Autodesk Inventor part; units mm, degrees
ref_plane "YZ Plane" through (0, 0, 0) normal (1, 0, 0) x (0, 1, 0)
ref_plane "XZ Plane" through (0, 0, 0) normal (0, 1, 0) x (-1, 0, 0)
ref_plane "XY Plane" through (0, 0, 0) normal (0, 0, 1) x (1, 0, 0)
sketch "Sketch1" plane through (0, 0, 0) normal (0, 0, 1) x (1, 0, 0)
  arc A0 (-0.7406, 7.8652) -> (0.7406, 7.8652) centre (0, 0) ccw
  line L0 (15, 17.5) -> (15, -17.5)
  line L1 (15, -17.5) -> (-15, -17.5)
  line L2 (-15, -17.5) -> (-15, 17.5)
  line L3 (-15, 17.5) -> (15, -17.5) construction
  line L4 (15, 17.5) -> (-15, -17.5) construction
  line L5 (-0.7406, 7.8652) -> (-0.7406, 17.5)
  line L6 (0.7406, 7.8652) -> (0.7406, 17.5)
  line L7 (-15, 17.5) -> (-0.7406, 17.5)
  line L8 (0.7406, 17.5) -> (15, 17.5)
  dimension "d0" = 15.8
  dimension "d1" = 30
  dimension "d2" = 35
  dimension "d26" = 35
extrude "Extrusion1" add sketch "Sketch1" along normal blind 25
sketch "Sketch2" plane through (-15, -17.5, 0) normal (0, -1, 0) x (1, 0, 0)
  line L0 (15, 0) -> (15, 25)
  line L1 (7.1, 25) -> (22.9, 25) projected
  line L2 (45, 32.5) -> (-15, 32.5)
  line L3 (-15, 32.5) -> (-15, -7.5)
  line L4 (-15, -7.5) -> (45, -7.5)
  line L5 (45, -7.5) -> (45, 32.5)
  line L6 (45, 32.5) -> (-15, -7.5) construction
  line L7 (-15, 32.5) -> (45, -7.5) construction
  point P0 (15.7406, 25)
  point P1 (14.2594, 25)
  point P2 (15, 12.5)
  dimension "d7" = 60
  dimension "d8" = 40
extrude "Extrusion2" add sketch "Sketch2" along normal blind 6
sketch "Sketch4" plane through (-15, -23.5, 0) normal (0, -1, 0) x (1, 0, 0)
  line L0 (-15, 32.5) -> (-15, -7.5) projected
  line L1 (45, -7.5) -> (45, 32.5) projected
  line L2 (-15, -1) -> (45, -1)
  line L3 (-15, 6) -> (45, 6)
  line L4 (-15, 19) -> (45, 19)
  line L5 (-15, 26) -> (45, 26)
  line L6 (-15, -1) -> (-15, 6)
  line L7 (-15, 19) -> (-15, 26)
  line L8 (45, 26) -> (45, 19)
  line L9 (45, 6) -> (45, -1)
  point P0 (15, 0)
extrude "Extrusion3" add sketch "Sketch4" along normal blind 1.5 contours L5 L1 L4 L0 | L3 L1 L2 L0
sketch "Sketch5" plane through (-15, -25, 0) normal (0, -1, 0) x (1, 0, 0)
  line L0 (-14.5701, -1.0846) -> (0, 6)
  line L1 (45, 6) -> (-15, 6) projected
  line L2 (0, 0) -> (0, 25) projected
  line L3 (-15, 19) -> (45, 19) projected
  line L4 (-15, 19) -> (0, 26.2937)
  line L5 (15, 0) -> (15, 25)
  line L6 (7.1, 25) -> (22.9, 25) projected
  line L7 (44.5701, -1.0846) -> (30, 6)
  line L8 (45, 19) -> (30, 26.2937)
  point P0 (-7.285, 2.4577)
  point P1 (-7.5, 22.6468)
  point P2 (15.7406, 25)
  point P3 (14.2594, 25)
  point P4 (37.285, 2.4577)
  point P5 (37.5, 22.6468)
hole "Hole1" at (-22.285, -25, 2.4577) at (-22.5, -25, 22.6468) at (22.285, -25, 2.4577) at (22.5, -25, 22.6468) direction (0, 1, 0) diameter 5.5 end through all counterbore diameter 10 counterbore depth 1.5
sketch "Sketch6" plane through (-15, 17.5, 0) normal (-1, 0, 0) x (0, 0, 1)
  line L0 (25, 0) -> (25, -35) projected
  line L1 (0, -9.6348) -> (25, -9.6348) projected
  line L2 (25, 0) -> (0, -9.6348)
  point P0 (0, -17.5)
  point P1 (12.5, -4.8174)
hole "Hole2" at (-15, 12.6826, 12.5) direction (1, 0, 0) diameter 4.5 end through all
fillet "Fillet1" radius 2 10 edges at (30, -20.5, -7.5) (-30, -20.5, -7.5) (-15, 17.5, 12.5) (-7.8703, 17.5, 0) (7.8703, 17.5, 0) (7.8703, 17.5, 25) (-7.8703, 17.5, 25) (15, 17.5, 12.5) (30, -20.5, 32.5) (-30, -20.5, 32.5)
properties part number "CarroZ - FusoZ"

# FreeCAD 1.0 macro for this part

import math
import FreeCAD as App
import Part
import Sketcher

V = App.Vector


def edges_at(feature, points):
    """Names of the edges that pass closest to the given points."""
    edges = feature.Shape.Edges
    near = lambda p: min(range(len(edges)), key=lambda i: edges[i].distToShape(Part.Vertex(*p))[0])
    return sorted({f"Edge{near(p) + 1}" for p in points})

doc = App.newDocument("Part")
body = doc.addObject("PartDesign::Body", "Body")

# Sketch on XY plane
sketch1 = body.newObject("Sketcher::SketchObject", "Sketch")
sketch1.AttachmentSupport = (doc.getObject("XY_Plane"), [""])
sketch1.MapMode = "FlatFace"
sketch1.addGeometry([
    Part.ArcOfCircle(Part.Circle(V(0, 0, 0), V(0, 0, 1), 7.899991), math.radians(95.379203), math.radians(444.620797)),  # 0
    Part.LineSegment(V(-0.7406, 7.8652, 0), V(-0.7406, 17.5, 0)),  # 1
    Part.LineSegment(V(-0.7406, 17.5, 0), V(-15, 17.5, 0)),  # 2
    Part.LineSegment(V(-15, 17.5, 0), V(-15, -17.5, 0)),  # 3
    Part.LineSegment(V(-15, -17.5, 0), V(15, -17.5, 0)),  # 4
    Part.LineSegment(V(15, -17.5, 0), V(15, 17.5, 0)),  # 5
    Part.LineSegment(V(15, 17.5, 0), V(0.7406, 17.5, 0)),  # 6
    Part.LineSegment(V(0.7406, 17.5, 0), V(0.7406, 7.8652, 0)),  # 7
], False)
sketch1.addConstraint([
    Sketcher.Constraint("Coincident", 0, 1, 1, 1),
    Sketcher.Constraint("Coincident", 1, 2, 2, 1),
    Sketcher.Constraint("Coincident", 2, 2, 3, 1),
    Sketcher.Constraint("Coincident", 3, 2, 4, 1),
    Sketcher.Constraint("Coincident", 4, 2, 5, 1),
    Sketcher.Constraint("Coincident", 5, 2, 6, 1),
    Sketcher.Constraint("Coincident", 6, 2, 7, 1),
    Sketcher.Constraint("Coincident", 7, 2, 0, 2),
    Sketcher.Constraint("Vertical", 1),
    Sketcher.Constraint("Horizontal", 2),
    Sketcher.Constraint("Vertical", 3),
    Sketcher.Constraint("Horizontal", 4),
    Sketcher.Constraint("Vertical", 5),
    Sketcher.Constraint("Horizontal", 6),
    Sketcher.Constraint("Vertical", 7),
    Sketcher.Constraint("Coincident", 0, 3, -1, 1),
    Sketcher.Constraint("Symmetric", 2, 2, 4, 2, -1, 1),
    Sketcher.Constraint("Symmetric", 1, 2, 6, 2, -2),
    Sketcher.Constraint("Radius", 0, 7.9),
    Sketcher.Constraint("DistanceX", 4, 1, 4, 2, 30.0),
    Sketcher.Constraint("DistanceY", 3, 2, 3, 1, 35.0),
    Sketcher.Constraint("DistanceX", 2, 2, 2, 1, 14.2594),
])
pad1 = body.newObject("PartDesign::Pad", "Pad")
pad1.Profile = sketch1
pad1.Length = 25

# Sketch on XZ plane
sketch2 = body.newObject("Sketcher::SketchObject", "Sketch001")
sketch2.AttachmentSupport = (doc.getObject("XZ_Plane"), [""])
sketch2.MapMode = "FlatFace"
sketch2.AttachmentOffset = App.Placement(V(0, 0, 17.5), App.Rotation())
sketch2.addGeometry([
    Part.LineSegment(V(30, -7.5, 0), V(30, 32.5, 0)),
    Part.LineSegment(V(30, 32.5, 0), V(-30, 32.5, 0)),
    Part.LineSegment(V(-30, 32.5, 0), V(-30, -7.5, 0)),
    Part.LineSegment(V(-30, -7.5, 0), V(30, -7.5, 0)),
], False)
sketch2.addConstraint([
    Sketcher.Constraint("Coincident", 0, 2, 1, 1),
    Sketcher.Constraint("Coincident", 1, 2, 2, 1),
    Sketcher.Constraint("Coincident", 2, 2, 3, 1),
    Sketcher.Constraint("Coincident", 3, 2, 0, 1),
    Sketcher.Constraint("Vertical", 0),
    Sketcher.Constraint("Horizontal", 1),
    Sketcher.Constraint("Vertical", 2),
    Sketcher.Constraint("Horizontal", 3),
    Sketcher.Constraint("DistanceX", 1, 2, 1, 1, 60.0),
    Sketcher.Constraint("DistanceY", 0, 1, 0, 2, 40.0),
    Sketcher.Constraint("DistanceX", -1, 1, 0, 2, 30.0),
    Sketcher.Constraint("DistanceY", -1, 1, 0, 2, 32.5),
])
pad2 = body.newObject("PartDesign::Pad", "Pad001")
pad2.Profile = sketch2
pad2.Length = 6

# Sketch on XZ plane
sketch3 = body.newObject("Sketcher::SketchObject", "Sketch002")
sketch3.AttachmentSupport = (doc.getObject("XZ_Plane"), [""])
sketch3.MapMode = "FlatFace"
sketch3.AttachmentOffset = App.Placement(V(0, 0, 23.5), App.Rotation())
sketch3.addGeometry([
    Part.LineSegment(V(30, 26, 0), V(-30, 26, 0)),  # 0
    Part.LineSegment(V(-30, 26, 0), V(-30, 19, 0)),  # 1
    Part.LineSegment(V(-30, 19, 0), V(30, 19, 0)),  # 2
    Part.LineSegment(V(30, 19, 0), V(30, 26, 0)),  # 3
    Part.LineSegment(V(30, 6, 0), V(-30, 6, 0)),  # 4
    Part.LineSegment(V(-30, 6, 0), V(-30, -1, 0)),  # 5
    Part.LineSegment(V(-30, -1, 0), V(30, -1, 0)),  # 6
    Part.LineSegment(V(30, -1, 0), V(30, 6, 0)),  # 7
], False)
sketch3.addConstraint([
    Sketcher.Constraint("Coincident", 0, 2, 1, 1),
    Sketcher.Constraint("Coincident", 1, 2, 2, 1),
    Sketcher.Constraint("Coincident", 2, 2, 3, 1),
    Sketcher.Constraint("Coincident", 3, 2, 0, 1),
    Sketcher.Constraint("Coincident", 4, 2, 5, 1),
    Sketcher.Constraint("Coincident", 5, 2, 6, 1),
    Sketcher.Constraint("Coincident", 6, 2, 7, 1),
    Sketcher.Constraint("Coincident", 7, 2, 4, 1),
    Sketcher.Constraint("Horizontal", 0),
    Sketcher.Constraint("Vertical", 1),
    Sketcher.Constraint("Horizontal", 2),
    Sketcher.Constraint("Vertical", 3),
    Sketcher.Constraint("Horizontal", 4),
    Sketcher.Constraint("Vertical", 5),
    Sketcher.Constraint("Horizontal", 6),
    Sketcher.Constraint("Vertical", 7),
    Sketcher.Constraint("Vertical", 1, 2, 4, 2),
    Sketcher.Constraint("Vertical", 3, 2, 6, 2),
    Sketcher.Constraint("Equal", 3, 5),
    Sketcher.Constraint("DistanceX", 0, 2, 0, 1, 60.0),
    Sketcher.Constraint("DistanceY", 1, 2, 1, 1, 7.0),
    Sketcher.Constraint("DistanceX", 0, 2, -1, 1, 30.0),
    Sketcher.Constraint("DistanceY", -1, 1, 0, 2, 26.0),
    Sketcher.Constraint("DistanceY", -1, 1, 4, 2, 6.0),
])
pad3 = body.newObject("PartDesign::Pad", "Pad002")
pad3.Profile = sketch3
pad3.Length = 1.5

# Sketch on XZ plane
sketch4 = body.newObject("Sketcher::SketchObject", "Sketch003")
sketch4.AttachmentSupport = (doc.getObject("XZ_Plane"), [""])
sketch4.MapMode = "FlatFace"
sketch4.AttachmentOffset = App.Placement(V(0, 0, 25), App.Rotation())
sketch4.addGeometry([
    Part.Circle(V(-22.285, 2.4577, 0), V(0, 0, 1), 2.75),
    Part.Circle(V(-22.5, 22.6468, 0), V(0, 0, 1), 2.75),
    Part.Circle(V(22.285, 2.4577, 0), V(0, 0, 1), 2.75),
    Part.Circle(V(22.5, 22.6468, 0), V(0, 0, 1), 2.75),
], False)
sketch4.addConstraint([
    Sketcher.Constraint("Equal", 0, 1),
    Sketcher.Constraint("Equal", 1, 2),
    Sketcher.Constraint("Equal", 2, 3),
    Sketcher.Constraint("Symmetric", 0, 3, 2, 3, -2),
    Sketcher.Constraint("Symmetric", 1, 3, 3, 3, -2),
    Sketcher.Constraint("Diameter", 0, 5.5),
    Sketcher.Constraint("DistanceX", 1, 3, 3, 3, 45.0),
    Sketcher.Constraint("DistanceX", 0, 3, 2, 3, 44.57),
    Sketcher.Constraint("DistanceY", 0, 3, 1, 3, 20.189),
    Sketcher.Constraint("DistanceY", -1, 1, 0, 3, 2.4577),
])
doc.recompute()
hole = body.newObject("PartDesign::Hole", "Hole")
hole.Profile = sketch4
hole.ThreadType = "None"
hole.Diameter = 5.5
hole.DepthType = "ThroughAll"
hole.HoleCutType = "Counterbore"
hole.HoleCutDiameter = 10
hole.HoleCutDepth = 1.5

# Sketch on YZ plane
sketch5 = body.newObject("Sketcher::SketchObject", "Sketch004")
sketch5.AttachmentSupport = (doc.getObject("YZ_Plane"), [""])
sketch5.MapMode = "FlatFace"
sketch5.AttachmentOffset = App.Placement(V(0, 0, -15), App.Rotation())
sketch5.addGeometry(Part.Circle(V(12.6826, 12.5, 0), V(0, 0, 1), 2.25), False)
sketch5.addConstraint([
    Sketcher.Constraint("Diameter", 0, 4.5),
    Sketcher.Constraint("DistanceY", -1, 1, 0, 3, 12.5),
    Sketcher.Constraint("DistanceX", -1, 1, 0, 3, 12.6826),
])
doc.recompute()
hole2 = body.newObject("PartDesign::Hole", "Hole001")
hole2.Profile = sketch5
hole2.ThreadType = "None"
hole2.Diameter = 4.5
hole2.DepthType = "ThroughAll"
hole2.Reversed = True
doc.recompute()

fillet = body.newObject("PartDesign::Fillet", "Fillet")
fillet.Base = (hole2, edges_at(hole2, [
    (30, -20.5, -7.5),
    (-30, -20.5, -7.5),
    (-15, 17.5, 12.5),
    (-7.87, 17.5, 0),
    (7.87, 17.5, 0),
    (7.87, 17.5, 25),
    (-7.87, 17.5, 25),
    (15, 17.5, 12.5),
    (30, -20.5, 32.5),
    (-30, -20.5, 32.5),
]))
fillet.Radius = 2

doc.recompute()
